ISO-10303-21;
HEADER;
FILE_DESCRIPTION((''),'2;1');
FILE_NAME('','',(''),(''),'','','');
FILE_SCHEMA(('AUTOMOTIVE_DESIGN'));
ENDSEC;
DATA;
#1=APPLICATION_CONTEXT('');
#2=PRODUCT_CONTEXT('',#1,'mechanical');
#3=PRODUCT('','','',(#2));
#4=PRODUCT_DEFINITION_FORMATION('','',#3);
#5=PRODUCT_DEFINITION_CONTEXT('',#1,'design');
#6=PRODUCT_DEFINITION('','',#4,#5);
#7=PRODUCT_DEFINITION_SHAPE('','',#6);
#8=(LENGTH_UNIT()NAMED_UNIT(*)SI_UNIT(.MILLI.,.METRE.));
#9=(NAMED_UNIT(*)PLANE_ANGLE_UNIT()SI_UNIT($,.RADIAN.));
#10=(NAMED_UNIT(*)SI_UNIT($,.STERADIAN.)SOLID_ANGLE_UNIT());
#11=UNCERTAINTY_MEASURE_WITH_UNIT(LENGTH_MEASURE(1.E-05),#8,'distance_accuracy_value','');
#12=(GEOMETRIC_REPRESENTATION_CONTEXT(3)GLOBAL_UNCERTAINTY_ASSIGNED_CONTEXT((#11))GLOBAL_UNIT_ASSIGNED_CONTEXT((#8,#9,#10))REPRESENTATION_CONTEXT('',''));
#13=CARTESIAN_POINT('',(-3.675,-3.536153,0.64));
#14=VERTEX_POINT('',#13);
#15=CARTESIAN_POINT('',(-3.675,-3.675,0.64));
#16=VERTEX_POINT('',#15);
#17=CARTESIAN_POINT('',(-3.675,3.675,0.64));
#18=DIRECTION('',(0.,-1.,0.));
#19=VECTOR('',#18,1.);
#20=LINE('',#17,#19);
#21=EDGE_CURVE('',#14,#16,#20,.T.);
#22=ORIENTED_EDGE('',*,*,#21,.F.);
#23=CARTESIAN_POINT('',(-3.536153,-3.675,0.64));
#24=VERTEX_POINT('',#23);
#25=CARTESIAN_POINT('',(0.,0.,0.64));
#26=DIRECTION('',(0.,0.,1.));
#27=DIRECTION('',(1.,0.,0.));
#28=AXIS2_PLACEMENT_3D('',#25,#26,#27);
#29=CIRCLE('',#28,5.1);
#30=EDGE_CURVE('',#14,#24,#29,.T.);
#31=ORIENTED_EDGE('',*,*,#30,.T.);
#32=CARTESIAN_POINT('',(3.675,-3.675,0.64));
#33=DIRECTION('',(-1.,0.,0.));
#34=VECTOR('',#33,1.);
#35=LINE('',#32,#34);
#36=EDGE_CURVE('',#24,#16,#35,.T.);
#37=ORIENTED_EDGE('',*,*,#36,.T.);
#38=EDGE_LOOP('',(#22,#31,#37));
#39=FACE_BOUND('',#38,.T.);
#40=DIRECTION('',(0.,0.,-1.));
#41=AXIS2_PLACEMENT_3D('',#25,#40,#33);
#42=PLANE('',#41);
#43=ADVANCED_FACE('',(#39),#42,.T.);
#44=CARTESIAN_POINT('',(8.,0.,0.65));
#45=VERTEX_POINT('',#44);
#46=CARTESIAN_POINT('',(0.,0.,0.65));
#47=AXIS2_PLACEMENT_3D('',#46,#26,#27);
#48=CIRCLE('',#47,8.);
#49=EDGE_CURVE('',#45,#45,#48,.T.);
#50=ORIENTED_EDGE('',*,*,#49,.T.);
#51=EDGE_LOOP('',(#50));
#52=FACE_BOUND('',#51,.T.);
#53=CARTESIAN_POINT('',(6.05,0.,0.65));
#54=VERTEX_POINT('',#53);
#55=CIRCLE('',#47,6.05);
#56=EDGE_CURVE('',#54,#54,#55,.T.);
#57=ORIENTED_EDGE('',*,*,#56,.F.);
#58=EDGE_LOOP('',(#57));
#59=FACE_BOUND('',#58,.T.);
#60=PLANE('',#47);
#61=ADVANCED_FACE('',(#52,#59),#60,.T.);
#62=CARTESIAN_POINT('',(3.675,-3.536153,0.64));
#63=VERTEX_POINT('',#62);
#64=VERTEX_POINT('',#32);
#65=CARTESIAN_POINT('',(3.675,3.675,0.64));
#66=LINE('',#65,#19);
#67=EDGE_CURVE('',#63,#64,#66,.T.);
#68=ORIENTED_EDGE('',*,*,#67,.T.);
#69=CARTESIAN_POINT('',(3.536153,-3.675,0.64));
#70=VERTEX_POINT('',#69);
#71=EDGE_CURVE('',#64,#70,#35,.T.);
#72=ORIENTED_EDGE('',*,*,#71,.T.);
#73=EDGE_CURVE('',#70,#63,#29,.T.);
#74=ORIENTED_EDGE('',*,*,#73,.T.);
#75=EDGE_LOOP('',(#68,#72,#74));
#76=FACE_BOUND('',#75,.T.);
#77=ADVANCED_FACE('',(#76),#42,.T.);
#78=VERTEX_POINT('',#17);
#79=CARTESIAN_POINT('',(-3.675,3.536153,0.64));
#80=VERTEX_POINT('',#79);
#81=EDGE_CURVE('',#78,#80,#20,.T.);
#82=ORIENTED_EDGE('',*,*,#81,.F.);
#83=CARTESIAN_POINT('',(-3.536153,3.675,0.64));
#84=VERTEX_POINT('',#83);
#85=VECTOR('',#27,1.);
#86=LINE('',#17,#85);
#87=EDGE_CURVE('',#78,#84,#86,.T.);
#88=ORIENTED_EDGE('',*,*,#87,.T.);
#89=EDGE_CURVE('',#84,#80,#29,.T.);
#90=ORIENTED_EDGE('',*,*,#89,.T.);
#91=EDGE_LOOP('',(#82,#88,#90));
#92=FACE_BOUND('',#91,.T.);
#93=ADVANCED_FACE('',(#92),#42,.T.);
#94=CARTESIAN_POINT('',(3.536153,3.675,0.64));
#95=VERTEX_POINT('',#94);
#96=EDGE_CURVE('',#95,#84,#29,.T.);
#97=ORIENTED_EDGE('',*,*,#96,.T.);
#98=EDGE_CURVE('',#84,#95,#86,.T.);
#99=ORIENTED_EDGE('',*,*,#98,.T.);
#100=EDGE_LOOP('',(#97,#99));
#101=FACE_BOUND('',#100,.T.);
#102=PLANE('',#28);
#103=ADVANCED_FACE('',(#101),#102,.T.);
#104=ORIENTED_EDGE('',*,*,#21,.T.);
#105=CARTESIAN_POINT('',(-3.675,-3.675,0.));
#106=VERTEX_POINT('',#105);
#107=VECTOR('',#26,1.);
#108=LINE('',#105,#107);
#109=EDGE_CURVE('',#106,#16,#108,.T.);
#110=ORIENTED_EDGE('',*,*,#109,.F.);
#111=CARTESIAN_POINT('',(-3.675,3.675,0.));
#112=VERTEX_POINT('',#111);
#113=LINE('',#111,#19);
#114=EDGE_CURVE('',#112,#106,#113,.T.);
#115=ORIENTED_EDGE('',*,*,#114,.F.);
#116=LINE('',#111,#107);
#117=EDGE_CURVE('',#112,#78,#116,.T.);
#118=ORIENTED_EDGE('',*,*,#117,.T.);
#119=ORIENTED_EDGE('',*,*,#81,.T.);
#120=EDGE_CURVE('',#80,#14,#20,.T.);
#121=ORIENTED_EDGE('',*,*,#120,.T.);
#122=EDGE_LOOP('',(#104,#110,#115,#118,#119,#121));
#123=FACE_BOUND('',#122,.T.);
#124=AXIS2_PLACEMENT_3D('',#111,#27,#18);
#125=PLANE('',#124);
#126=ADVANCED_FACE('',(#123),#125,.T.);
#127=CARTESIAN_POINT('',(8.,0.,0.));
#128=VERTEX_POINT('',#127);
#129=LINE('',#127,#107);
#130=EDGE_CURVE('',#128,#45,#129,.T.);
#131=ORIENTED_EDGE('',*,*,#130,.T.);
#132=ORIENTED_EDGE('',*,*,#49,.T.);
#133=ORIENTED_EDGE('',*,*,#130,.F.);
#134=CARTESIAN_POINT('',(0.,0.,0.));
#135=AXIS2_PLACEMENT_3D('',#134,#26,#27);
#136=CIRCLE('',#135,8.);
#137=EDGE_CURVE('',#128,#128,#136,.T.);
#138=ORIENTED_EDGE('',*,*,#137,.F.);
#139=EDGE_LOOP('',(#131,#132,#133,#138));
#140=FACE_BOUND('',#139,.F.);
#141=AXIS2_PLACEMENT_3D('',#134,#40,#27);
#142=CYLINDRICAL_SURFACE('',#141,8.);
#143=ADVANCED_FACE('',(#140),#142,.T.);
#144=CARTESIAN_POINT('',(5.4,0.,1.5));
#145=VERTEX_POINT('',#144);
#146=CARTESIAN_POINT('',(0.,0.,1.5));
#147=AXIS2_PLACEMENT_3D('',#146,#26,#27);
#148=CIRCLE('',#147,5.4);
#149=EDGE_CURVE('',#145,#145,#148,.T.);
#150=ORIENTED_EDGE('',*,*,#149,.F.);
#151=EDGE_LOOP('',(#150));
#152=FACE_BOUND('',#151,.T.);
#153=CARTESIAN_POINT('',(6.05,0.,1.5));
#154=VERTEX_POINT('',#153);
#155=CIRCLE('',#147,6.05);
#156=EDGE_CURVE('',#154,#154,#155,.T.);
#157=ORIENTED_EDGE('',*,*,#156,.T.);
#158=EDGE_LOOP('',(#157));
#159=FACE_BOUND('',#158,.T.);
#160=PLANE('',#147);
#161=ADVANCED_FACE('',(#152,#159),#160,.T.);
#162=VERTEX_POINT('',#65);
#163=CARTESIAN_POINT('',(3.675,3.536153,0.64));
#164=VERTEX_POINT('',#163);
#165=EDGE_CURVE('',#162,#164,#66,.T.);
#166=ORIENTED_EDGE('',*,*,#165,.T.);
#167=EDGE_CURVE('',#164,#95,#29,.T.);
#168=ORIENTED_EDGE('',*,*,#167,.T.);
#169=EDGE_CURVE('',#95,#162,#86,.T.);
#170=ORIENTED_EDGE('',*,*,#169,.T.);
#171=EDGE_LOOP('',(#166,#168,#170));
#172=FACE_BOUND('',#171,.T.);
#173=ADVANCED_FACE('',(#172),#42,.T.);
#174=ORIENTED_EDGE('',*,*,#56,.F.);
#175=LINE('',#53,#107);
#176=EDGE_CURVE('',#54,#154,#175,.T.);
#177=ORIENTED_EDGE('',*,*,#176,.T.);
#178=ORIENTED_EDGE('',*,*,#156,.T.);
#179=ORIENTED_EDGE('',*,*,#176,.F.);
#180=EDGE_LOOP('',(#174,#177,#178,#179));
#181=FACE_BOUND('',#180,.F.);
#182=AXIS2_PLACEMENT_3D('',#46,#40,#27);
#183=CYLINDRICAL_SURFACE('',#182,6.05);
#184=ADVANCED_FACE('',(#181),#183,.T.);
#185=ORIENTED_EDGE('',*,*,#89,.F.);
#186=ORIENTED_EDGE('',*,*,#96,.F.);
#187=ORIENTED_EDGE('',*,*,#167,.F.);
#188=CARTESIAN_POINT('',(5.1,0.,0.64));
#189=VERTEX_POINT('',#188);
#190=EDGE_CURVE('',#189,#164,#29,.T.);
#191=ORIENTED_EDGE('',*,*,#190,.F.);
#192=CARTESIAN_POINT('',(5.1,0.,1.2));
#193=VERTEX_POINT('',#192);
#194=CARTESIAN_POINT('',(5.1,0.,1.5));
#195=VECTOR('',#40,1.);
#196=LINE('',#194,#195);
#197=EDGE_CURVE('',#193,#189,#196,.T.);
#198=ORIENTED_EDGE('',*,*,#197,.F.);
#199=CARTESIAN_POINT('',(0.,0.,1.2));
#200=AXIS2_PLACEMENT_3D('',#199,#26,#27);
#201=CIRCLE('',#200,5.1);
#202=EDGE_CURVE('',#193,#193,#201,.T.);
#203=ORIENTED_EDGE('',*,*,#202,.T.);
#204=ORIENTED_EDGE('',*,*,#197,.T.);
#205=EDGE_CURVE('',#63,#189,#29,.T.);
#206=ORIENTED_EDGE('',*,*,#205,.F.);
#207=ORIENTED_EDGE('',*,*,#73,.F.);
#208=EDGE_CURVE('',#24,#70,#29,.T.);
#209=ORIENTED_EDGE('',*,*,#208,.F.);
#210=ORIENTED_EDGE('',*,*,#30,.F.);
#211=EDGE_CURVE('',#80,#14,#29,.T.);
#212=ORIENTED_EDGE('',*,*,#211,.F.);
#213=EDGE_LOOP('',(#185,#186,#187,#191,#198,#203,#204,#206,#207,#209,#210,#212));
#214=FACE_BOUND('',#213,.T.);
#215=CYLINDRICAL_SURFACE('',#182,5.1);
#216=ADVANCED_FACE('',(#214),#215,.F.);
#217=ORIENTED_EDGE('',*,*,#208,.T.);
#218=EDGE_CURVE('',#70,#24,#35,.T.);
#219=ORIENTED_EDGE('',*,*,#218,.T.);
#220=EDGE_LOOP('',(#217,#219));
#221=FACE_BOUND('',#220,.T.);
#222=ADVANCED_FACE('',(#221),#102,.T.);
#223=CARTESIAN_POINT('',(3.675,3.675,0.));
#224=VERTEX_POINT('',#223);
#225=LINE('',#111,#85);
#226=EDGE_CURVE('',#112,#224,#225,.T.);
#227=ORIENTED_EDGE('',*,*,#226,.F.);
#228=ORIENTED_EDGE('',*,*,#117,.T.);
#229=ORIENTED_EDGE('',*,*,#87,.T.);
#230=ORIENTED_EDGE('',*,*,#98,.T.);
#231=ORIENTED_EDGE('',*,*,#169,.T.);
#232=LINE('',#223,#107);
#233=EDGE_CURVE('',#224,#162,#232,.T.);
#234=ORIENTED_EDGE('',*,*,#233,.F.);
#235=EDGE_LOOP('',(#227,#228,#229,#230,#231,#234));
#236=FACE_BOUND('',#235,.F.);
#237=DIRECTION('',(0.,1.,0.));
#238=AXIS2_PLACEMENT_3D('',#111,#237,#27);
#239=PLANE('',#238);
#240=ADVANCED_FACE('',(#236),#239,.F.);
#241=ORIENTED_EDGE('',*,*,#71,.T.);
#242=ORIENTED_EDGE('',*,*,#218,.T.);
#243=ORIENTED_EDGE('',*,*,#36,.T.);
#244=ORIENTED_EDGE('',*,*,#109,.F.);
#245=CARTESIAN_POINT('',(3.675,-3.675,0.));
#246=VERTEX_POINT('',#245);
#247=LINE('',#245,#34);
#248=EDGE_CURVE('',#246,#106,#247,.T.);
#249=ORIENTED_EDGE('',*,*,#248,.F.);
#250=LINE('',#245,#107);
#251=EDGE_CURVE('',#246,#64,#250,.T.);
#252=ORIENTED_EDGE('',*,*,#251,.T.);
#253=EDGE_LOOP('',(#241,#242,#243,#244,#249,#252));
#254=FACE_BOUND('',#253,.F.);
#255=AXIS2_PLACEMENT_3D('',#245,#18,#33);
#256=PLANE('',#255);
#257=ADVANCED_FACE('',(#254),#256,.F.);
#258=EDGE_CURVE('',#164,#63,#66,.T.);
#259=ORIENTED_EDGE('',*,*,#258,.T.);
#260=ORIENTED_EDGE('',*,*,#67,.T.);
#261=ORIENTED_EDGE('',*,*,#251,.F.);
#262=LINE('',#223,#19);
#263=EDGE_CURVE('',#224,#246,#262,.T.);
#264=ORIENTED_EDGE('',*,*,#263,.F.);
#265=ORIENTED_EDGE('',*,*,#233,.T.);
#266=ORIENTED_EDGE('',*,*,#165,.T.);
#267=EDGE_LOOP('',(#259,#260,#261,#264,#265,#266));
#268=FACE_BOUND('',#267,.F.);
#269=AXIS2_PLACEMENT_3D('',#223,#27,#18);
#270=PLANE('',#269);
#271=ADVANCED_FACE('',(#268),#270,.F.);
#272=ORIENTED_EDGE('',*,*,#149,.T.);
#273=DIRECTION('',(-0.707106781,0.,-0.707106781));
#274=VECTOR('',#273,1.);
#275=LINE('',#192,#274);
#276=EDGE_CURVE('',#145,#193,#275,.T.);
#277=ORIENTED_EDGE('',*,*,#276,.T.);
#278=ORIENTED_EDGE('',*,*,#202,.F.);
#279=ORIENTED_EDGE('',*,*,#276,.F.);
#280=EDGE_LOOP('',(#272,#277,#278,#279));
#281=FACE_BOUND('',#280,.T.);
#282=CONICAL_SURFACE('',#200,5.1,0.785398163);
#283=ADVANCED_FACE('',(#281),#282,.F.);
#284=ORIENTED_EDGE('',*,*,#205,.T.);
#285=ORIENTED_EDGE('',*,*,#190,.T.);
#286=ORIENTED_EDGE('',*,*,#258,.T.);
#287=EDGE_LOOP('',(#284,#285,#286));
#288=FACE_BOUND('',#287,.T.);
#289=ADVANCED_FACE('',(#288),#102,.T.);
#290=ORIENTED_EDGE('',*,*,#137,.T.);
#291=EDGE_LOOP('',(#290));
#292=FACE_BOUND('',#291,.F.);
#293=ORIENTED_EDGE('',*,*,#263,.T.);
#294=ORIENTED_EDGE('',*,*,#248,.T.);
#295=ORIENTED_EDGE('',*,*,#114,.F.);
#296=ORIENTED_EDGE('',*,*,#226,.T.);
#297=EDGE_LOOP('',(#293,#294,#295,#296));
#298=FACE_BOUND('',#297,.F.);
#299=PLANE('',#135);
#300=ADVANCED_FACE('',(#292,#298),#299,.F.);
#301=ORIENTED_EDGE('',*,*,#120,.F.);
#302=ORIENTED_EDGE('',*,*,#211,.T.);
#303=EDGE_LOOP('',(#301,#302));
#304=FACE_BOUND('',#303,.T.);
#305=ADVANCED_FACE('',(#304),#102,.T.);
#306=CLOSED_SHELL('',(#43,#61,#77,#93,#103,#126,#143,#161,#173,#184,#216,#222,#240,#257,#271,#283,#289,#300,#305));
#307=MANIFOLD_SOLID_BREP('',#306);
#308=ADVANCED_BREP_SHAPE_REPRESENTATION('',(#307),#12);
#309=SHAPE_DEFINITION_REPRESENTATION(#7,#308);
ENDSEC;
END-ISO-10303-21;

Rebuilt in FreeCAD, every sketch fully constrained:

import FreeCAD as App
import Part
import Sketcher
from FreeCAD import Vector
Q = App.Units.Quantity


def edges_at(feature, points):
    """Names of the edges that pass closest to the given points."""
    edges = feature.Shape.Edges
    near = lambda p: min(range(len(edges)), key=lambda i: edges[i].distToShape(Part.Vertex(*p))[0])
    return sorted({f"Edge{near(p) + 1}" for p in points})

doc = App.newDocument("Part")
params = doc.addObject("Spreadsheet::Sheet", "Params")
for row, (alias, value) in enumerate([
    ("sketch1_diameter", "16 mm"),
    ("pad1_length", "0.65 mm"),
    ("sketch2_diameter", "12.1 mm"),
    ("sketch2_diameter2", "10.2 mm"),
    ("pad2_length", "0.85 mm"),
    ("sketch3_diameter", "10.2 mm"),
    ("pocket1_length", "0.01 mm"),
    ("sketch4_width", "7.35 mm"),
    ("pocket2_length", "0.64 mm"),
    ("chamfer_size", "0.3 mm"),
], start=1):
    params.set(f"A{row}", alias)
    params.set(f"B{row}", "=" + value)
    params.setAlias(f"B{row}", alias)

body = doc.addObject("PartDesign::Body", "Body")

# Sketch on XY plane
sketch1 = body.newObject("Sketcher::SketchObject", "Sketch")
sketch1.AttachmentSupport = (doc.getObject("XY_Plane"), [""])
sketch1.MapMode = "FlatFace"
sketch1.addGeometry(Part.Circle(Vector(0, 0, 0), Vector(0, 0, 1), 8), False)
sketch1.addConstraint(Sketcher.Constraint("Coincident", 0, 3, -1, 1))
sketch1.addConstraint(Sketcher.Constraint("Diameter", 0, Q("16 mm")))
sketch1.setExpression("Constraints[1]", "Params.sketch1_diameter")
pad1 = body.newObject("PartDesign::Pad", "Pad")
pad1.Profile = sketch1
pad1.setExpression("Length", "Params.pad1_length")

# Sketch on XY plane
sketch2 = body.newObject("Sketcher::SketchObject", "Sketch001")
sketch2.AttachmentSupport = (doc.getObject("XY_Plane"), [""])
sketch2.MapMode = "FlatFace"
sketch2.AttachmentOffset = App.Placement(Vector(0, 0, 0.65), App.Rotation())
sketch2.addGeometry(Part.Circle(Vector(0, 0, 0), Vector(0, 0, 1), 6), False)
sketch2.addGeometry(Part.Circle(Vector(0, 0, 0), Vector(0, 0, 1), 5), False)
sketch2.addConstraint(Sketcher.Constraint("Coincident", 0, 3, -1, 1))
sketch2.addConstraint(Sketcher.Constraint("Coincident", 1, 3, -1, 1))
sketch2.addConstraint(Sketcher.Constraint("Diameter", 0, Q("12.1 mm")))
sketch2.addConstraint(Sketcher.Constraint("Diameter", 1, Q("10.2 mm")))
sketch2.setExpression("Constraints[2]", "Params.sketch2_diameter")
sketch2.setExpression("Constraints[3]", "Params.sketch2_diameter2")
pad2 = body.newObject("PartDesign::Pad", "Pad001")
pad2.Profile = sketch2
pad2.setExpression("Length", "Params.pad2_length")

# Sketch on XY plane
sketch3 = body.newObject("Sketcher::SketchObject", "Sketch002")
sketch3.AttachmentSupport = (doc.getObject("XY_Plane"), [""])
sketch3.MapMode = "FlatFace"
sketch3.AttachmentOffset = App.Placement(Vector(0, 0, 0.65), App.Rotation())
sketch3.addGeometry(Part.Circle(Vector(0, 0, 0), Vector(0, 0, 1), 5), False)
sketch3.addConstraint(Sketcher.Constraint("Coincident", 0, 3, -1, 1))
sketch3.addConstraint(Sketcher.Constraint("Diameter", 0, Q("10.2 mm")))
sketch3.setExpression("Constraints[1]", "Params.sketch3_diameter")
pocket1 = body.newObject("PartDesign::Pocket", "Pocket")
pocket1.Profile = sketch3
pocket1.setExpression("Length", "Params.pocket1_length")

# Sketch on XY plane
sketch4 = body.newObject("Sketcher::SketchObject", "Sketch003")
sketch4.AttachmentSupport = (doc.getObject("XY_Plane"), [""])
sketch4.MapMode = "FlatFace"
sketch4.addGeometry(Part.LineSegment(Vector(4, -4, 0), Vector(4, 4, 0)), False)
sketch4.addGeometry(Part.LineSegment(Vector(4, 4, 0), Vector(-4, 4, 0)), False)
sketch4.addGeometry(Part.LineSegment(Vector(-4, 4, 0), Vector(-4, -4, 0)), False)
sketch4.addGeometry(Part.LineSegment(Vector(-4, -4, 0), Vector(4, -4, 0)), False)
sketch4.addConstraint(Sketcher.Constraint("Coincident", 0, 2, 1, 1))
sketch4.addConstraint(Sketcher.Constraint("Coincident", 1, 2, 2, 1))
sketch4.addConstraint(Sketcher.Constraint("Coincident", 2, 2, 3, 1))
sketch4.addConstraint(Sketcher.Constraint("Coincident", 3, 2, 0, 1))
sketch4.addConstraint(Sketcher.Constraint("Vertical", 0))
sketch4.addConstraint(Sketcher.Constraint("Horizontal", 1))
sketch4.addConstraint(Sketcher.Constraint("Vertical", 2))
sketch4.addConstraint(Sketcher.Constraint("Horizontal", 3))
sketch4.addConstraint(Sketcher.Constraint("Symmetric", 0, 2, 2, 2, -1, 1))
sketch4.addConstraint(Sketcher.Constraint("Equal", 3, 0))
sketch4.addConstraint(Sketcher.Constraint("DistanceX", 1, 2, 1, 1, Q("7.35 mm")))
sketch4.setExpression("Constraints[10]", "Params.sketch4_width")
pocket2 = body.newObject("PartDesign::Pocket", "Pocket001")
pocket2.Profile = sketch4
pocket2.setExpression("Length", "Params.pocket2_length")
pocket2.Reversed = True
doc.recompute()

chamfer = body.newObject("PartDesign::Chamfer", "Chamfer")
chamfer.Base = (pocket2, edges_at(pocket2, [(-5.1, 0, 1.5)]))
chamfer.setExpression("Size", "Params.chamfer_size")

doc.recompute()
